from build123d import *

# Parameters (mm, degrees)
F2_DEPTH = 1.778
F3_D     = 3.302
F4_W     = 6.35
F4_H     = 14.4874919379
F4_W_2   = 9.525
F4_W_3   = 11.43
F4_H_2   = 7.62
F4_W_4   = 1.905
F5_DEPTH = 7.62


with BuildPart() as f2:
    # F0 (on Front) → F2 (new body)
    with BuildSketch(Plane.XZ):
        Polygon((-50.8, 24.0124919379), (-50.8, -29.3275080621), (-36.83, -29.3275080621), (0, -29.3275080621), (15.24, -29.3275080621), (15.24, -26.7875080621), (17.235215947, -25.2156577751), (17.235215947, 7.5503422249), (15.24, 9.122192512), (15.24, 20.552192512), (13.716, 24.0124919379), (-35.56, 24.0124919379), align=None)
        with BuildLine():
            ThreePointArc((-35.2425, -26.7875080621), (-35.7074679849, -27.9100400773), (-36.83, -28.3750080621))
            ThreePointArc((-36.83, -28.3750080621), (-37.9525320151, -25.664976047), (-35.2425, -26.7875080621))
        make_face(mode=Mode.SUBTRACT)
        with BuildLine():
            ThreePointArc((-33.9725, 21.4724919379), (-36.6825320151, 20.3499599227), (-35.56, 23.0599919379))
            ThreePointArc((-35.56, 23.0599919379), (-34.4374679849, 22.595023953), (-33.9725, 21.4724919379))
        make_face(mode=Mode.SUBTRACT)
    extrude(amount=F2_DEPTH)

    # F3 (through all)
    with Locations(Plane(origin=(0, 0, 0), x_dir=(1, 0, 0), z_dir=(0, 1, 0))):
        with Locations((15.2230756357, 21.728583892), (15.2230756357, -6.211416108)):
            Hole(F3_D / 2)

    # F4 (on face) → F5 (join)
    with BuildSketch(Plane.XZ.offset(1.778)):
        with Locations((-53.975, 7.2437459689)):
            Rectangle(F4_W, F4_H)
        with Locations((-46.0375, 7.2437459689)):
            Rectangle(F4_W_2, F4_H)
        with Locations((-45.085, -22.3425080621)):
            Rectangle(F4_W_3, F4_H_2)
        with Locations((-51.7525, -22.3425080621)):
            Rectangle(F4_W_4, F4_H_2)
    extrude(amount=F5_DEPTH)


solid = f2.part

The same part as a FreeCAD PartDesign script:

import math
import FreeCAD as App
import Part
import Sketcher
Q = App.Units.Quantity


def add_polygon(sketch, points):
    """Adds a closed chain of lines whose ends are joined by coincident constraints."""
    first, n = sketch.GeometryCount, len(points)
    for a, b in zip(points, points[1:] + points[:1]):
        sketch.addGeometry(Part.LineSegment(App.Vector(*a, 0), App.Vector(*b, 0)), False)
    for i in range(n):
        sketch.addConstraint(Sketcher.Constraint("Coincident", first + i, 2, first + (i + 1) % n, 1))

doc = App.newDocument("Part")
body = doc.addObject("PartDesign::Body", "Body")

# Sketch on XZ plane
sketch1 = body.newObject("Sketcher::SketchObject", "Sketch")
sketch1.AttachmentSupport = (doc.getObject("XZ_Plane"), [""])
sketch1.MapMode = "FlatFace"
add_polygon(sketch1, [(-50.8, 24), (-50.8, -29.3), (15.2, -29.3), (15.2, -26.8), (17.2, -25.2), (17.2, 7.6), (15.2, 9.1), (15.2, 20.6), (13.7, 24)])  # lines 0-8
sketch1.addGeometry(Part.ArcOfCircle(Part.Circle(App.Vector(-36.8, -26.8, 0), App.Vector(0, 0, 1), 1.6), math.radians(0), math.radians(270)), False)  # 9
sketch1.addGeometry(Part.ArcOfCircle(Part.Circle(App.Vector(-36.8, -26.8, 0), App.Vector(0, 0, 1), 1.6), math.radians(-90), math.radians(0)), False)  # 10
sketch1.addGeometry(Part.ArcOfCircle(Part.Circle(App.Vector(-35.6, 21.5, 0), App.Vector(0, 0, 1), 1.6), math.radians(0), math.radians(90)), False)  # 11
sketch1.addGeometry(Part.ArcOfCircle(Part.Circle(App.Vector(-35.6, 21.5, 0), App.Vector(0, 0, 1), 1.6), math.radians(90), math.radians(360)), False)  # 12
sketch1.addConstraint([
    Sketcher.Constraint("Tangent", 9, 1, 10, 2),
    Sketcher.Constraint("Coincident", 10, 1, 9, 2),
    Sketcher.Constraint("Tangent", 11, 1, 12, 2),
    Sketcher.Constraint("Coincident", 12, 1, 11, 2),
    Sketcher.Constraint("Vertical", 0),
    Sketcher.Constraint("Horizontal", 1),
    Sketcher.Constraint("Vertical", 2),
    Sketcher.Constraint("Vertical", 4),
    Sketcher.Constraint("Vertical", 6),
    Sketcher.Constraint("Horizontal", 8),
    Sketcher.Constraint("Equal", 10, 11),
    Sketcher.Constraint("Horizontal", 10, 3, 2, 2),
    Sketcher.Constraint("Horizontal", 2, 2, 9, 1),
    Sketcher.Constraint("Horizontal", 12, 3, 11, 1),
    Sketcher.Constraint("Vertical", 2, 2, 5, 2),
    Sketcher.Constraint("Vertical", 9, 3, 10, 1),
    Sketcher.Constraint("Vertical", 11, 3, 12, 1),
    Sketcher.Constraint("Equal", 3, 5),
    Sketcher.Constraint("DistanceX", 1, 1, 1, 2, Q("2.6 in")),
    Sketcher.Constraint("DistanceY", 0, 2, 0, 1, Q("2.1 in")),
    Sketcher.Constraint("DistanceY", 2, 1, 2, 2, Q("0.1 in")),
    Sketcher.Constraint("DistanceX", 0, 2, -1, 1, Q("2 in")),
    Sketcher.Constraint("Radius", 9, Q("0.0625 in")),
    Sketcher.Constraint("DistanceY", 0, 2, 11, 3, Q("2 in")),
    Sketcher.Constraint("DistanceX", 11, 3, 1, 2, Q("2 in")),
    Sketcher.Constraint("Distance", 3, Q("0.1 in")),
    Sketcher.Constraint("DistanceX", 8, 2, 8, 1, Q("2.54 in")),
    Sketcher.Constraint("DistanceY", 4, 1, 4, 2, Q("1.29 in")),
    Sketcher.Constraint("DistanceY", 6, 1, 6, 2, Q("0.45 in")),
    Sketcher.Constraint("DistanceX", 9, 3, -1, 1, Q("1.45 in")),
    Sketcher.Constraint("DistanceY", 2, 2, 5, 2, Q("35.909701 mm")),
    Sketcher.Constraint("DistanceY", 9, 3, -1, 1, Q("26.787508 mm")),
])
pad1 = body.newObject("PartDesign::Pad", "Pad")
pad1.Profile = sketch1
pad1.Length = Q("0.07 in")

# Sketch on XZ plane
sketch2 = body.newObject("Sketcher::SketchObject", "Sketch001")
sketch2.AttachmentSupport = (doc.getObject("XZ_Plane"), [""])
sketch2.MapMode = "FlatFace"
sketch2.addGeometry([
    Part.Circle(App.Vector(15.2, -21.7, 0), App.Vector(0, 0, 1), 1.7),
    Part.Circle(App.Vector(15.2, 6.2, 0), App.Vector(0, 0, 1), 1.7),
], False)
sketch2.addConstraint([
    Sketcher.Constraint("Equal", 0, 1),
    Sketcher.Constraint("Vertical", 0, 3, 1, 3),
    Sketcher.Constraint("Diameter", 0, Q("0.13 in")),
    Sketcher.Constraint("DistanceY", 0, 3, 1, 3, Q("1.1 in")),
    Sketcher.Constraint("DistanceX", -1, 1, 0, 3, Q("15.223076 mm")),
    Sketcher.Constraint("DistanceY", 0, 3, -1, 1, Q("21.728584 mm")),
])
doc.recompute()
hole = body.newObject("PartDesign::Hole", "Hole")
hole.Profile = sketch2
hole.ThreadType = "None"
hole.Diameter = Q("0.13 in")
hole.DepthType = "ThroughAll"
hole.Reversed = True

# Sketch on XZ plane
sketch3 = body.newObject("Sketcher::SketchObject", "Sketch002")
sketch3.AttachmentSupport = (doc.getObject("XZ_Plane"), [""])
sketch3.MapMode = "FlatFace"
sketch3.AttachmentOffset = App.Placement(App.Vector(0, 0, 0.07 * 25.4), App.Rotation())
add_polygon(sketch3, [(-57, 14), (-57, 0), (-41, 0), (-41, 14)])  # lines 0-3
add_polygon(sketch3, [(-39, -26), (-39, -19), (-53, -19), (-53, -26)])  # lines 4-7
sketch3.addConstraint([
    Sketcher.Constraint("Vertical", 0),
    Sketcher.Constraint("Horizontal", 1),
    Sketcher.Constraint("Vertical", 2),
    Sketcher.Constraint("Horizontal", 3),
    Sketcher.Constraint("Vertical", 4),
    Sketcher.Constraint("Horizontal", 5),
    Sketcher.Constraint("Vertical", 6),
    Sketcher.Constraint("Horizontal", 7),
    Sketcher.Constraint("PointOnObject", 0, 2, -1),
    Sketcher.Constraint("DistanceY", 4, 1, 4, 2, Q("0.3 in")),
    Sketcher.Constraint("DistanceX", 0, 2, 4, 2, Q("0.7 in")),
    Sketcher.Constraint("DistanceY", 4, 2, 2, 2, Q("1.3 in")),
    Sketcher.Constraint("DistanceX", 1, 1, 1, 2, Q("0.625 in")),
    Sketcher.Constraint("DistanceX", 5, 2, 5, 1, Q("0.525 in")),
    Sketcher.Constraint("DistanceX", 0, 2, -1, 1, Q("2.25 in")),
    Sketcher.Constraint("DistanceY", 0, 2, 0, 1, Q("14.487492 mm")),
])
pad2 = body.newObject("PartDesign::Pad", "Pad001")
pad2.Profile = sketch3
pad2.Length = Q("0.3 in")

doc.recompute()
